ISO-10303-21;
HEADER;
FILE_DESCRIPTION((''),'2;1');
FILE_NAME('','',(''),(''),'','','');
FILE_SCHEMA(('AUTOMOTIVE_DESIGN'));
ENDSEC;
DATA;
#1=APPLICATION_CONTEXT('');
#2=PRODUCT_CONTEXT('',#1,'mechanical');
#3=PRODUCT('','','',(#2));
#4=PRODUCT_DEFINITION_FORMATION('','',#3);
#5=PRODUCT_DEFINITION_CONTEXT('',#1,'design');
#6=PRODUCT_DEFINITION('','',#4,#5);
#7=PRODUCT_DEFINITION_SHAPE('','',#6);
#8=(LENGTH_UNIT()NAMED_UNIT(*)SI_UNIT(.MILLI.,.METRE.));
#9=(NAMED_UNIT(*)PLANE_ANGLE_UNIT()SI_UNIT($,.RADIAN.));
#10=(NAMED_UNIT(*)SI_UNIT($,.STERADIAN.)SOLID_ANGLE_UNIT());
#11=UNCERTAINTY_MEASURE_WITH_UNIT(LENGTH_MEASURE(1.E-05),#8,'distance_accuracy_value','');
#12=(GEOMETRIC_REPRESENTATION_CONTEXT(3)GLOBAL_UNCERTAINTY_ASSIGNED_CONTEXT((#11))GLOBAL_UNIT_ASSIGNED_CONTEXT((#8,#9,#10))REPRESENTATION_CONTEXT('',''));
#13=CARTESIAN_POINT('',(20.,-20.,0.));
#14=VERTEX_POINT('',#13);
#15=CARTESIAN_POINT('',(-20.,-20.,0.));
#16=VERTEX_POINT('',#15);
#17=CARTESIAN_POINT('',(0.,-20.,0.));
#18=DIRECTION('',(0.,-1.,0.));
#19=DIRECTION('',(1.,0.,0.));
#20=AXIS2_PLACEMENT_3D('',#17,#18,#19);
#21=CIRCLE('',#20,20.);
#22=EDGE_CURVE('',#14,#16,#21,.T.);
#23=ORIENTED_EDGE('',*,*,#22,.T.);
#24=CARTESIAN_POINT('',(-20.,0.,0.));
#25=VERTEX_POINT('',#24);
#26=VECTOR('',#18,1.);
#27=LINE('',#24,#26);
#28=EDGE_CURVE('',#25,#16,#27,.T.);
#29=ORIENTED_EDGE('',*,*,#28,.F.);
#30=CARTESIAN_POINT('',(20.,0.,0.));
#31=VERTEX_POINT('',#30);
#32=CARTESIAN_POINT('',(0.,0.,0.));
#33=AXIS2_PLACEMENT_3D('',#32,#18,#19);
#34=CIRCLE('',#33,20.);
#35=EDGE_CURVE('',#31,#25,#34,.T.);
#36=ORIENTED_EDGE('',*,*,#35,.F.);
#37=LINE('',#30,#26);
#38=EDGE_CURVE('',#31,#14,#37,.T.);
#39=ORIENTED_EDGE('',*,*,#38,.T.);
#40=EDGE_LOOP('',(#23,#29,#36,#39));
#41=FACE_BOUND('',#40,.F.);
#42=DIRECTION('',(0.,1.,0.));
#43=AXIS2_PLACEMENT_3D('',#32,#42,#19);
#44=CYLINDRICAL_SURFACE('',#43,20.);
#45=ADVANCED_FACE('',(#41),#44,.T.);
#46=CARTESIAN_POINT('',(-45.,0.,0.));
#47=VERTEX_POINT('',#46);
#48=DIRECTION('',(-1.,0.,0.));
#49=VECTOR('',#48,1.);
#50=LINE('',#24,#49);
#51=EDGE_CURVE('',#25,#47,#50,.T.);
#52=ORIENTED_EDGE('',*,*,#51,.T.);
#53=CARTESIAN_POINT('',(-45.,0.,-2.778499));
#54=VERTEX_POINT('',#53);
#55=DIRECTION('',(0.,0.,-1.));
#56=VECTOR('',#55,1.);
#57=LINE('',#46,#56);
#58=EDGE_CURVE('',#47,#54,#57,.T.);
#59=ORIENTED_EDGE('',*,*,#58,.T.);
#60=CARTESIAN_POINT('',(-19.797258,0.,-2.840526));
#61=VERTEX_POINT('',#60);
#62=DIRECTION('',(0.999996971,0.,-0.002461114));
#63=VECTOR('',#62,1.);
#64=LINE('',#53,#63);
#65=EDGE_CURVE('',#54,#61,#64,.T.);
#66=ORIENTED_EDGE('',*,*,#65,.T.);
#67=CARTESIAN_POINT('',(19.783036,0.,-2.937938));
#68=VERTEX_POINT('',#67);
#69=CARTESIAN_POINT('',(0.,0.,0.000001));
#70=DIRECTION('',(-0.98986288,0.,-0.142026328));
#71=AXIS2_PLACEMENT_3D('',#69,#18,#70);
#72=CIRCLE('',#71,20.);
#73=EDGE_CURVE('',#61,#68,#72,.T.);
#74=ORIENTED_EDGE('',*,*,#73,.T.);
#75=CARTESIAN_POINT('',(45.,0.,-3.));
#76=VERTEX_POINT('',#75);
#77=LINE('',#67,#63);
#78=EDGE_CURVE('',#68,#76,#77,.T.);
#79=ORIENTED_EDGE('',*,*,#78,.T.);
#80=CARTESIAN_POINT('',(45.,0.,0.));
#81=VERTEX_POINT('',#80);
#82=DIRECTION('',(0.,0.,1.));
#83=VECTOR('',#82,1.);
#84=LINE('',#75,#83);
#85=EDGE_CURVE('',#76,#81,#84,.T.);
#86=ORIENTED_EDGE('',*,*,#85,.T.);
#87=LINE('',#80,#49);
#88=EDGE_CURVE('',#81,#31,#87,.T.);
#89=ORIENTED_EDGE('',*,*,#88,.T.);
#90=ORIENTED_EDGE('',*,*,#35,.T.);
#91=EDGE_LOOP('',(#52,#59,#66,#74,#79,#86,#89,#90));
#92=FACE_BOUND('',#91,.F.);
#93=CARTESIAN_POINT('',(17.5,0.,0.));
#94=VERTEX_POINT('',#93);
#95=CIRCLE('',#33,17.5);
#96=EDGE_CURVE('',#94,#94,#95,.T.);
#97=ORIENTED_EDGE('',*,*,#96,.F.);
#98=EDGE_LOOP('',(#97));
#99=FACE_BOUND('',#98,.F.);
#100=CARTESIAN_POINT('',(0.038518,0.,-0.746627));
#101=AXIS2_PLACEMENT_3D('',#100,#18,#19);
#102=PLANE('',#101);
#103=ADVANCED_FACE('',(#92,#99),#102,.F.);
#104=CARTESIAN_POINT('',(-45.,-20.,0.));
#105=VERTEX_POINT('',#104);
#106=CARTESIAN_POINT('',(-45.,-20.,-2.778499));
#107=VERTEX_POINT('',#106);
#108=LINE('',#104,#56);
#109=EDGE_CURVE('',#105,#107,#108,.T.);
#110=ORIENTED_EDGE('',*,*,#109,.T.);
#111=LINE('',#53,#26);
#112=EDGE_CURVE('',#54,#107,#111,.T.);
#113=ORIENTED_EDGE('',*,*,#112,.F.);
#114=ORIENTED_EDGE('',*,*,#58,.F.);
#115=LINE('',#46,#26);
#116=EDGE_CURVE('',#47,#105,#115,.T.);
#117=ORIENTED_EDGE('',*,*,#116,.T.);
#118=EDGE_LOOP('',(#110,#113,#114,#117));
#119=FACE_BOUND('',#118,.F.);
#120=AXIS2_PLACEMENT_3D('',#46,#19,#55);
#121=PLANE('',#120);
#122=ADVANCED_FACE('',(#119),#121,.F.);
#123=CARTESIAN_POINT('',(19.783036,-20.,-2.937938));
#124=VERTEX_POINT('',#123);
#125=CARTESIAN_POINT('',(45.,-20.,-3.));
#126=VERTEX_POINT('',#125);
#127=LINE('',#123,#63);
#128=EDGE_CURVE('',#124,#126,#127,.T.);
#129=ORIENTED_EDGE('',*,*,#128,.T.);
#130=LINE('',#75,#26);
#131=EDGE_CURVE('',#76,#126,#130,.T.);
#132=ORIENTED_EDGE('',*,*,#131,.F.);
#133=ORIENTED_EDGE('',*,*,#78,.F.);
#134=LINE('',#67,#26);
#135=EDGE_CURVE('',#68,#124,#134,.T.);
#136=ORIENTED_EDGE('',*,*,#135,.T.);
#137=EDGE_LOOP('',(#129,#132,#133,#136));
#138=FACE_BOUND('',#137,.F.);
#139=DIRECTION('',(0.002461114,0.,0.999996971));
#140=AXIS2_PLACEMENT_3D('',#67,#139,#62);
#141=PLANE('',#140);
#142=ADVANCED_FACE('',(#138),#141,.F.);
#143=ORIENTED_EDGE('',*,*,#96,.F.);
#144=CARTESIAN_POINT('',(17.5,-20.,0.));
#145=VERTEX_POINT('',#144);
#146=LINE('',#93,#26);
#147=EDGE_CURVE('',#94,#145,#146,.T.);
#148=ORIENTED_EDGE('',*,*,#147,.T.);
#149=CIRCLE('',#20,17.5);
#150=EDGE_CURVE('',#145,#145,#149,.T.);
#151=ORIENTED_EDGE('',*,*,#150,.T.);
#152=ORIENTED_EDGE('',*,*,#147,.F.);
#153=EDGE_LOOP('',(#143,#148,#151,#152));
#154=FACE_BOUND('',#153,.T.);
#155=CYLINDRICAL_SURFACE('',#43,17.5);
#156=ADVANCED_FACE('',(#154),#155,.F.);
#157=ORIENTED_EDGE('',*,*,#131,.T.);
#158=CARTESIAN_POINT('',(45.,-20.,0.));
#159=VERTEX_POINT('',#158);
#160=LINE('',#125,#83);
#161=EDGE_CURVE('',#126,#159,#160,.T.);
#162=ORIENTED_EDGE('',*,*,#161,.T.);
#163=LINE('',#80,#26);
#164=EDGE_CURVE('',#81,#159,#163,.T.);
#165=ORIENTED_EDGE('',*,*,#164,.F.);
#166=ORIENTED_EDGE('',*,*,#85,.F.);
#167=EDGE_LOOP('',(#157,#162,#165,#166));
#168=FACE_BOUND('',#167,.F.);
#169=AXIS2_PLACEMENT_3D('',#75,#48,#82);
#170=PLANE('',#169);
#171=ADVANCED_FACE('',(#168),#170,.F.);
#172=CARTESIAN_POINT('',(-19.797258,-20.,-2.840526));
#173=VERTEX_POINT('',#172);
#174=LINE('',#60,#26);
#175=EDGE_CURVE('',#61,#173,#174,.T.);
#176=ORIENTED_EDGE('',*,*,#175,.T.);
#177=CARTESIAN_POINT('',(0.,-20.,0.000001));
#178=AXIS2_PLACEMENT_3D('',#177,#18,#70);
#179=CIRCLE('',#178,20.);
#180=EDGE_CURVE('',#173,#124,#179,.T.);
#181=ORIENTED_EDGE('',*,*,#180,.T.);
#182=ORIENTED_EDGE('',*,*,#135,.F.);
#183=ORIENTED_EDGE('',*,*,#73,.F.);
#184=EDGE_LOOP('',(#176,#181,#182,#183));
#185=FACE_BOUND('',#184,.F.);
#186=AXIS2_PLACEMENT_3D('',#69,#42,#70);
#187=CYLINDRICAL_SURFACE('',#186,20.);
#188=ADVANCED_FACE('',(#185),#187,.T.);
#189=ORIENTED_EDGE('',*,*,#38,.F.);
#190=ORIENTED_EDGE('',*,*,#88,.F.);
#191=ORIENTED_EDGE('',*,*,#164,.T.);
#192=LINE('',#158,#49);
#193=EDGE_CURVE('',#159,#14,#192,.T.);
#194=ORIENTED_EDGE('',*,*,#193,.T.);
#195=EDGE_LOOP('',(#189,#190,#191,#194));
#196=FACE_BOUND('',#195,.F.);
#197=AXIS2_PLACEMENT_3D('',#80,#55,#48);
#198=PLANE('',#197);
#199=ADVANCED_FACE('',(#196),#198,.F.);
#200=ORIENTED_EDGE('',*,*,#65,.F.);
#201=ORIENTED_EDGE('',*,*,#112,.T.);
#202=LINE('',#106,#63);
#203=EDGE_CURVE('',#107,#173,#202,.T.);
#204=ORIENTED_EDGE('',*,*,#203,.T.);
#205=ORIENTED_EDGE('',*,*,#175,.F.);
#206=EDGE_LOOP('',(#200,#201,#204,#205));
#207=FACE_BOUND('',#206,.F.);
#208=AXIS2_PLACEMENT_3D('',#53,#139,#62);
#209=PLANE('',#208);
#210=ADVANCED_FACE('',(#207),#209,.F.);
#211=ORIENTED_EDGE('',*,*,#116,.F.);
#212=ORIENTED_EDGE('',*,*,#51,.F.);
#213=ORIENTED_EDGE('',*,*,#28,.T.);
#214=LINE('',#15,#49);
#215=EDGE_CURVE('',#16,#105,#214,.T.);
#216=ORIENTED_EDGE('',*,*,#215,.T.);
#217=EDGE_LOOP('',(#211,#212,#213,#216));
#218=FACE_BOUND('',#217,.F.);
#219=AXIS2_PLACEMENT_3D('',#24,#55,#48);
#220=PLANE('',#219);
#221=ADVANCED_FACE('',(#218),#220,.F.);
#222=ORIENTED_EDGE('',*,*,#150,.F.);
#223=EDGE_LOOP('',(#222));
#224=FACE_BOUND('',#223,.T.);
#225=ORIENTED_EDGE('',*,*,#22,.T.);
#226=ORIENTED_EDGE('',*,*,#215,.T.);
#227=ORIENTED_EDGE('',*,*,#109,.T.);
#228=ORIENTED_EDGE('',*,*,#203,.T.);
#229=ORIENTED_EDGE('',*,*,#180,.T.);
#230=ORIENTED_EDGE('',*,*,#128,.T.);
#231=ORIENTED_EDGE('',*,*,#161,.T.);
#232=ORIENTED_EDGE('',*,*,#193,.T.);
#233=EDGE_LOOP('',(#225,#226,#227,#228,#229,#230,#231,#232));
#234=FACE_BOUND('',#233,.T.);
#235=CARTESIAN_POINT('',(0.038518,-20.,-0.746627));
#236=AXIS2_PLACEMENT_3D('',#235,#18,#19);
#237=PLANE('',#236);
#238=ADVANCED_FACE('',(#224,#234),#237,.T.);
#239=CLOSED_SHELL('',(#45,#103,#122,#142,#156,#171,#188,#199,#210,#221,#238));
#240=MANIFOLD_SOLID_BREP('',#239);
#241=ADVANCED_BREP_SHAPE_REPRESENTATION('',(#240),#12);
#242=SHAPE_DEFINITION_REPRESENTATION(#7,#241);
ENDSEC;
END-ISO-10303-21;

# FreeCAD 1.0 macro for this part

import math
import FreeCAD as App
import Part
import Sketcher
Q = App.Units.Quantity

doc = App.newDocument("Part")
body = doc.addObject("PartDesign::Body", "Body")

# Sketch on XZ plane
sketch1 = doc.addObject("Sketcher::SketchObject", "Sketch")
body.addObject(sketch1)
sketch1.AttachmentSupport = (doc.XZ_Plane, [""])
sketch1.MapMode = "FlatFace"
sketch1.addGeometry([
    Part.LineSegment(App.Vector(45, 0, 0), App.Vector(20, 0, 0)),  # 0
    Part.ArcOfCircle(Part.Circle(App.Vector(0, 0, 0), App.Vector(0, 0, 1), 20), math.radians(0), math.radians(180)),  # 1
    Part.LineSegment(App.Vector(-20, 0, 0), App.Vector(-45, 0, 0)),  # 2
    Part.LineSegment(App.Vector(-45, 0, 0), App.Vector(-45, -2.8, 0)),  # 3
    Part.LineSegment(App.Vector(-45, -2.8, 0), App.Vector(-19.8, -2.8, 0)),  # 4
    Part.ArcOfCircle(Part.Circle(App.Vector(0, 0, 0), App.Vector(0, 0, 1), 20), math.radians(-172), math.radians(-8)),  # 5
    Part.LineSegment(App.Vector(19.8, -2.9, 0), App.Vector(45, -3, 0)),  # 6
    Part.LineSegment(App.Vector(45, -3, 0), App.Vector(45, 0, 0)),  # 7
    Part.Circle(App.Vector(0, 0, 0), App.Vector(0, 0, 1), 17.5),  # 8
], False)
sketch1.addConstraint([
    Sketcher.Constraint("Coincident", 0, 2, 1, 1),
    Sketcher.Constraint("Coincident", 1, 2, 2, 1),
    Sketcher.Constraint("Coincident", 2, 2, 3, 1),
    Sketcher.Constraint("Coincident", 3, 2, 4, 1),
    Sketcher.Constraint("Coincident", 4, 2, 5, 1),
    Sketcher.Constraint("Coincident", 5, 2, 6, 1),
    Sketcher.Constraint("Coincident", 6, 2, 7, 1),
    Sketcher.Constraint("Coincident", 7, 2, 0, 1),
    Sketcher.Constraint("Horizontal", 0),
    Sketcher.Constraint("Horizontal", 2),
    Sketcher.Constraint("Vertical", 3),
    Sketcher.Constraint("Vertical", 7),
    Sketcher.Constraint("Coincident", 1, 3, -1, 1),
    Sketcher.Constraint("Coincident", 5, 3, -1, 1),
    Sketcher.Constraint("Coincident", 8, 3, -1, 1),
    Sketcher.Constraint("Equal", 1, 5),
    Sketcher.Constraint("Symmetric", 2, 2, 7, 2, -1, 1),
    Sketcher.Constraint("PointOnObject", 0, 2, -1),
    Sketcher.Constraint("Parallel", 4, 6),
    Sketcher.Constraint("Diameter", 8, Q("35 mm")),
    Sketcher.Constraint("Radius", 1, Q("20 mm")),
    Sketcher.Constraint("DistanceX", 0, 2, 0, 1, Q("25 mm")),
    Sketcher.Constraint("DistanceY", 7, 1, 7, 2, Q("3 mm")),
    Sketcher.Constraint("DistanceY", 3, 2, 3, 1, Q("2.778499 mm")),
    Sketcher.Constraint("Distance", 4, Q("25.202818 mm")),
])
pad1 = doc.addObject("PartDesign::Pad", "Pad")
body.addObject(pad1)
pad1.Profile = sketch1
pad1.Length = 20

doc.recompute()
